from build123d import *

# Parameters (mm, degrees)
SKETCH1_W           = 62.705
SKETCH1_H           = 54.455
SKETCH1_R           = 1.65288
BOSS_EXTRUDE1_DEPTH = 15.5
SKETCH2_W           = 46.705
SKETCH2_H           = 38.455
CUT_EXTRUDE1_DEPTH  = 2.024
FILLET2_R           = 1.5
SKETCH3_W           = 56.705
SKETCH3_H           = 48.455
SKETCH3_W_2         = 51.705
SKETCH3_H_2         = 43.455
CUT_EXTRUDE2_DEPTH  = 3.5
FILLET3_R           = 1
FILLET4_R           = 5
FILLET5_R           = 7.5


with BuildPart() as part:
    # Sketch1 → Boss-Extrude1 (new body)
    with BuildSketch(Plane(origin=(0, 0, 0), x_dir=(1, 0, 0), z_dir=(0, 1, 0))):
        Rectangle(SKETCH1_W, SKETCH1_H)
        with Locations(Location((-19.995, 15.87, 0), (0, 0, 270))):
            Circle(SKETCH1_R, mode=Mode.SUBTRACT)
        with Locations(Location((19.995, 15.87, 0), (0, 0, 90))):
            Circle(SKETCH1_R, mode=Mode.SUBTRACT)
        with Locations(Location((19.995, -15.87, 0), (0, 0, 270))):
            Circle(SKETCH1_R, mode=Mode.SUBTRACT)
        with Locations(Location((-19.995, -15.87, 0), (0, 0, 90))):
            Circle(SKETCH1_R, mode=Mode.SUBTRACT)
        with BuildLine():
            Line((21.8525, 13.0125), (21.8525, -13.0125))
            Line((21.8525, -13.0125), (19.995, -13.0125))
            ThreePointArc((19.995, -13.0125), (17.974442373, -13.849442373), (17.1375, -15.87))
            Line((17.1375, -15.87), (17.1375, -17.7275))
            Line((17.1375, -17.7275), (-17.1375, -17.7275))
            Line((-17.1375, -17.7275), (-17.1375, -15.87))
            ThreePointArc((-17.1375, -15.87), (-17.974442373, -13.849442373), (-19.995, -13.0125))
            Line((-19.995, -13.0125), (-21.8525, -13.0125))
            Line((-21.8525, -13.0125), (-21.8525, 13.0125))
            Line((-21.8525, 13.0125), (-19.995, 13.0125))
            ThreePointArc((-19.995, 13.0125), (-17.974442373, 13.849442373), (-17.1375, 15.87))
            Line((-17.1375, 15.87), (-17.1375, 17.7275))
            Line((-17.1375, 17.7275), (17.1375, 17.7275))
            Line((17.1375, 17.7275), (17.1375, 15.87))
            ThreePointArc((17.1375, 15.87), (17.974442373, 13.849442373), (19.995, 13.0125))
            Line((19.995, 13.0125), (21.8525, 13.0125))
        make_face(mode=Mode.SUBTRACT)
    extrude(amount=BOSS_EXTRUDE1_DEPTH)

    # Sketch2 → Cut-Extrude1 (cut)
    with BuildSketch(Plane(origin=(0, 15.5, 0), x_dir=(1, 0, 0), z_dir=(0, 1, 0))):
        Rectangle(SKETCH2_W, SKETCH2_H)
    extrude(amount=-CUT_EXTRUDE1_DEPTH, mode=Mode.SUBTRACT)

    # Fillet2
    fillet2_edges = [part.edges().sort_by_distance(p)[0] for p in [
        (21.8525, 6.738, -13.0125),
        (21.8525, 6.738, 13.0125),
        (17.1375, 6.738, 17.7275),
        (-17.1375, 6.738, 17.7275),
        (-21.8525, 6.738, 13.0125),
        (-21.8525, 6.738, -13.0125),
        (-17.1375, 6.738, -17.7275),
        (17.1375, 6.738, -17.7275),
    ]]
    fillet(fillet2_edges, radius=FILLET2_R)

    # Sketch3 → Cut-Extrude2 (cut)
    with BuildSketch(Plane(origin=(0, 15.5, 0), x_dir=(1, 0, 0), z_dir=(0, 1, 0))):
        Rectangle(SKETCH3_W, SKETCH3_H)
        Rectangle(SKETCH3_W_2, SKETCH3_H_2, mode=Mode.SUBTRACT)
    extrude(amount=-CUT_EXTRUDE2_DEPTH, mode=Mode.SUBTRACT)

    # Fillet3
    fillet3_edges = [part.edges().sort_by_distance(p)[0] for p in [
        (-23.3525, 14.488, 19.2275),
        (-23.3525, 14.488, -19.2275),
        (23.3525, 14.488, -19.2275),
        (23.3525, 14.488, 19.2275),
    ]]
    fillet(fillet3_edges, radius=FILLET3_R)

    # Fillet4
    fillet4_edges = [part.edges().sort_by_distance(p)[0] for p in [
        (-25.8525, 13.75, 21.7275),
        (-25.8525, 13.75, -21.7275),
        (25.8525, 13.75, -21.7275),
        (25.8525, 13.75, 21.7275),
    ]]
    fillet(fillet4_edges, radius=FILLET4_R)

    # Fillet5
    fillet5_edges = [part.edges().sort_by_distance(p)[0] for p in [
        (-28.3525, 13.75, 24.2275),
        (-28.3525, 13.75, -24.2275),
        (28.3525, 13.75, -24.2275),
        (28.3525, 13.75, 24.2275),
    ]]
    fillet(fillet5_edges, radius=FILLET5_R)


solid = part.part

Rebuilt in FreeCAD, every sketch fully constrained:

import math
import FreeCAD as App
import Part
import Sketcher


def edges_at(feature, points):
    """Names of the edges that pass closest to the given points."""
    edges = feature.Shape.Edges
    near = lambda p: min(range(len(edges)), key=lambda i: edges[i].distToShape(Part.Vertex(*p))[0])
    return sorted({f"Edge{near(p) + 1}" for p in points})

doc = App.newDocument("Part")
body = doc.addObject("PartDesign::Body", "Body")

# Sketch on XZ plane
sketch1 = body.newObject("Sketcher::SketchObject", "Sketch")
sketch1.AttachmentSupport = (doc.getObject("XZ_Plane"), [""])
sketch1.MapMode = "FlatFace"
sketch1.addGeometry(Part.LineSegment(App.Vector(-31.4, -27.2, 0), App.Vector(-31.4, 27.2, 0)), False)
sketch1.addGeometry(Part.LineSegment(App.Vector(-31.4, 27.2, 0), App.Vector(31.4, 27.2, 0)), False)
sketch1.addGeometry(Part.LineSegment(App.Vector(31.4, 27.2, 0), App.Vector(31.4, -27.2, 0)), False)
sketch1.addGeometry(Part.LineSegment(App.Vector(31.4, -27.2, 0), App.Vector(-31.4, -27.2, 0)), False)
sketch1.addGeometry(Part.Circle(App.Vector(-20, 15.9, 0), App.Vector(0, 0, 1), 1.7), False)
sketch1.addGeometry(Part.Circle(App.Vector(20, 15.9, 0), App.Vector(0, 0, 1), 1.7), False)
sketch1.addGeometry(Part.Circle(App.Vector(-20, -15.9, 0), App.Vector(0, 0, 1), 1.7), False)
sketch1.addGeometry(Part.LineSegment(App.Vector(20, -13, 0), App.Vector(21.9, -13, 0)), False)
sketch1.addGeometry(Part.LineSegment(App.Vector(21.9, -13, 0), App.Vector(21.9, 13, 0)), False)
sketch1.addGeometry(Part.LineSegment(App.Vector(21.9, 13, 0), App.Vector(20, 13, 0)), False)
sketch1.addGeometry(Part.ArcOfCircle(Part.Circle(App.Vector(20, 15.9, 0), App.Vector(0, 0, 1), 2.9), math.radians(-180), math.radians(-90)), False)
sketch1.addGeometry(Part.LineSegment(App.Vector(17.1, 15.9, 0), App.Vector(17.1, 17.7, 0)), False)
sketch1.addGeometry(Part.LineSegment(App.Vector(17.1, 17.7, 0), App.Vector(-17.1, 17.7, 0)), False)
sketch1.addGeometry(Part.LineSegment(App.Vector(-17.1, 17.7, 0), App.Vector(-17.1, 15.9, 0)), False)
sketch1.addGeometry(Part.ArcOfCircle(Part.Circle(App.Vector(-20, 15.9, 0), App.Vector(0, 0, 1), 2.9), math.radians(-90), math.radians(0)), False)
sketch1.addGeometry(Part.LineSegment(App.Vector(-20, 13, 0), App.Vector(-21.9, 13, 0)), False)
sketch1.addGeometry(Part.LineSegment(App.Vector(-21.9, 13, 0), App.Vector(-21.9, -13, 0)), False)
sketch1.addGeometry(Part.LineSegment(App.Vector(-21.9, -13, 0), App.Vector(-20, -13, 0)), False)
sketch1.addGeometry(Part.ArcOfCircle(Part.Circle(App.Vector(-20, -15.9, 0), App.Vector(0, 0, 1), 2.9), math.radians(0), math.radians(90)), False)
sketch1.addGeometry(Part.LineSegment(App.Vector(-17.1, -15.9, 0), App.Vector(-17.1, -17.7, 0)), False)
sketch1.addGeometry(Part.LineSegment(App.Vector(-17.1, -17.7, 0), App.Vector(17.1, -17.7, 0)), False)
sketch1.addGeometry(Part.LineSegment(App.Vector(17.1, -17.7, 0), App.Vector(17.1, -15.9, 0)), False)
sketch1.addGeometry(Part.ArcOfCircle(Part.Circle(App.Vector(20, -15.9, 0), App.Vector(0, 0, 1), 2.9), math.radians(90), math.radians(180)), False)
sketch1.addGeometry(Part.Circle(App.Vector(20, -15.9, 0), App.Vector(0, 0, 1), 1.7), False)
sketch1.addConstraint(Sketcher.Constraint("Coincident", 0, 2, 1, 1))
sketch1.addConstraint(Sketcher.Constraint("Coincident", 1, 2, 2, 1))
sketch1.addConstraint(Sketcher.Constraint("Coincident", 2, 2, 3, 1))
sketch1.addConstraint(Sketcher.Constraint("Coincident", 3, 2, 0, 1))
sketch1.addConstraint(Sketcher.Constraint("Coincident", 7, 2, 8, 1))
sketch1.addConstraint(Sketcher.Constraint("Coincident", 8, 2, 9, 1))
sketch1.addConstraint(Sketcher.Constraint("Tangent", 9, 2, 10, 2))
sketch1.addConstraint(Sketcher.Constraint("Tangent", 10, 1, 11, 1))
sketch1.addConstraint(Sketcher.Constraint("Coincident", 11, 2, 12, 1))
sketch1.addConstraint(Sketcher.Constraint("Coincident", 12, 2, 13, 1))
sketch1.addConstraint(Sketcher.Constraint("Tangent", 13, 2, 14, 2))
sketch1.addConstraint(Sketcher.Constraint("Tangent", 14, 1, 15, 1))
sketch1.addConstraint(Sketcher.Constraint("Coincident", 15, 2, 16, 1))
sketch1.addConstraint(Sketcher.Constraint("Coincident", 16, 2, 17, 1))
sketch1.addConstraint(Sketcher.Constraint("Tangent", 17, 2, 18, 2))
sketch1.addConstraint(Sketcher.Constraint("Tangent", 18, 1, 19, 1))
sketch1.addConstraint(Sketcher.Constraint("Coincident", 19, 2, 20, 1))
sketch1.addConstraint(Sketcher.Constraint("Coincident", 20, 2, 21, 1))
sketch1.addConstraint(Sketcher.Constraint("Tangent", 21, 2, 22, 2))
sketch1.addConstraint(Sketcher.Constraint("Tangent", 22, 1, 7, 1))
sketch1.addConstraint(Sketcher.Constraint("Vertical", 0))
sketch1.addConstraint(Sketcher.Constraint("Horizontal", 1))
sketch1.addConstraint(Sketcher.Constraint("Vertical", 2))
sketch1.addConstraint(Sketcher.Constraint("Horizontal", 3))
sketch1.addConstraint(Sketcher.Constraint("Horizontal", 7))
sketch1.addConstraint(Sketcher.Constraint("Vertical", 8))
sketch1.addConstraint(Sketcher.Constraint("Horizontal", 9))
sketch1.addConstraint(Sketcher.Constraint("Vertical", 11))
sketch1.addConstraint(Sketcher.Constraint("Horizontal", 12))
sketch1.addConstraint(Sketcher.Constraint("Vertical", 13))
sketch1.addConstraint(Sketcher.Constraint("Horizontal", 15))
sketch1.addConstraint(Sketcher.Constraint("Vertical", 16))
sketch1.addConstraint(Sketcher.Constraint("Horizontal", 17))
sketch1.addConstraint(Sketcher.Constraint("Vertical", 19))
sketch1.addConstraint(Sketcher.Constraint("Horizontal", 20))
sketch1.addConstraint(Sketcher.Constraint("Vertical", 21))
sketch1.addConstraint(Sketcher.Constraint("Coincident", 10, 3, 5, 3))
sketch1.addConstraint(Sketcher.Constraint("Coincident", 14, 3, 4, 3))
sketch1.addConstraint(Sketcher.Constraint("Coincident", 18, 3, 6, 3))
sketch1.addConstraint(Sketcher.Constraint("Coincident", 23, 3, 22, 3))
sketch1.addConstraint(Sketcher.Constraint("Equal", 4, 5))
sketch1.addConstraint(Sketcher.Constraint("Equal", 5, 6))
sketch1.addConstraint(Sketcher.Constraint("Equal", 10, 14))
sketch1.addConstraint(Sketcher.Constraint("Equal", 14, 18))
sketch1.addConstraint(Sketcher.Constraint("Equal", 18, 22))
sketch1.addConstraint(Sketcher.Constraint("Equal", 6, 23))
sketch1.addConstraint(Sketcher.Constraint("Symmetric", 5, 3, 6, 3, -1, 1))
sketch1.addConstraint(Sketcher.Constraint("Symmetric", 4, 3, 22, 3, -1, 1))
sketch1.addConstraint(Sketcher.Constraint("Symmetric", 0, 2, 2, 2, -1, 1))
sketch1.addConstraint(Sketcher.Constraint("Symmetric", 4, 3, 5, 3, -2))
sketch1.addConstraint(Sketcher.Constraint("Equal", 9, 15))
sketch1.addConstraint(Sketcher.Constraint("Equal", 17, 11))
sketch1.addConstraint(Sketcher.Constraint("Equal", 13, 19))
sketch1.addConstraint(Sketcher.Constraint("Radius", 10, 2.8575))
sketch1.addConstraint(Sketcher.Constraint("DistanceX", 7, 2, 2, 2, 9.5))
sketch1.addConstraint(Sketcher.Constraint("DistanceY", 12, 2, 0, 2, 9.5))
sketch1.addConstraint(Sketcher.Constraint("Diameter", 4, 3.30576))
sketch1.addConstraint(Sketcher.Constraint("DistanceX", 1, 1, 1, 2, 62.705))
sketch1.addConstraint(Sketcher.Constraint("DistanceX", 12, 2, 12, 1, 34.275))
sketch1.addConstraint(Sketcher.Constraint("DistanceY", 0, 1, 0, 2, 54.455))
pad1 = body.newObject("PartDesign::Pad", "Pad")
pad1.Profile = sketch1
pad1.Length = 15.5
pad1.Reversed = True

# Sketch on XZ plane
sketch2 = body.newObject("Sketcher::SketchObject", "Sketch001")
sketch2.AttachmentSupport = (doc.getObject("XZ_Plane"), [""])
sketch2.MapMode = "FlatFace"
sketch2.AttachmentOffset = App.Placement(App.Vector(0, 0, -15.5), App.Rotation())
sketch2.addGeometry(Part.LineSegment(App.Vector(-23, -19, 0), App.Vector(-23, 19, 0)), False)
sketch2.addGeometry(Part.LineSegment(App.Vector(-23, 19, 0), App.Vector(23, 19, 0)), False)
sketch2.addGeometry(Part.LineSegment(App.Vector(23, 19, 0), App.Vector(23, -19, 0)), False)
sketch2.addGeometry(Part.LineSegment(App.Vector(23, -19, 0), App.Vector(-23, -19, 0)), False)
sketch2.addConstraint(Sketcher.Constraint("Coincident", 0, 2, 1, 1))
sketch2.addConstraint(Sketcher.Constraint("Coincident", 1, 2, 2, 1))
sketch2.addConstraint(Sketcher.Constraint("Coincident", 2, 2, 3, 1))
sketch2.addConstraint(Sketcher.Constraint("Coincident", 3, 2, 0, 1))
sketch2.addConstraint(Sketcher.Constraint("Vertical", 0))
sketch2.addConstraint(Sketcher.Constraint("Horizontal", 1))
sketch2.addConstraint(Sketcher.Constraint("Vertical", 2))
sketch2.addConstraint(Sketcher.Constraint("Horizontal", 3))
sketch2.addConstraint(Sketcher.Constraint("Symmetric", 0, 2, 2, 2, -1, 1))
sketch2.addConstraint(Sketcher.Constraint("DistanceX", 1, 1, 1, 2, 46.705))
sketch2.addConstraint(Sketcher.Constraint("DistanceY", 0, 1, 0, 2, 38.455))
pocket1 = body.newObject("PartDesign::Pocket", "Pocket")
pocket1.Profile = sketch2
pocket1.Length = 2.024
pocket1.Reversed = True
doc.recompute()

fillet = body.newObject("PartDesign::Fillet", "Fillet")
fillet.Base = (pocket1, edges_at(pocket1, [
    (21.852, 6.738, -13.012),
    (21.852, 6.738, 13.012),
    (17.137, 6.738, 17.727),
    (-17.137, 6.738, 17.727),
    (-21.852, 6.738, 13.012),
    (-21.852, 6.738, -13.012),
    (-17.137, 6.738, -17.727),
    (17.137, 6.738, -17.727),
]))
fillet.Radius = 1.5

# Sketch on XZ plane
sketch3 = body.newObject("Sketcher::SketchObject", "Sketch002")
sketch3.AttachmentSupport = (doc.getObject("XZ_Plane"), [""])
sketch3.MapMode = "FlatFace"
sketch3.AttachmentOffset = App.Placement(App.Vector(0, 0, -15.5), App.Rotation())
sketch3.addGeometry(Part.LineSegment(App.Vector(-28, -24, 0), App.Vector(-28, 24, 0)), False)
sketch3.addGeometry(Part.LineSegment(App.Vector(-28, 24, 0), App.Vector(28, 24, 0)), False)
sketch3.addGeometry(Part.LineSegment(App.Vector(28, 24, 0), App.Vector(28, -24, 0)), False)
sketch3.addGeometry(Part.LineSegment(App.Vector(28, -24, 0), App.Vector(-28, -24, 0)), False)
sketch3.addGeometry(Part.LineSegment(App.Vector(26, 22, 0), App.Vector(-26, 22, 0)), False)
sketch3.addGeometry(Part.LineSegment(App.Vector(-26, 22, 0), App.Vector(-26, -22, 0)), False)
sketch3.addGeometry(Part.LineSegment(App.Vector(-26, -22, 0), App.Vector(26, -22, 0)), False)
sketch3.addGeometry(Part.LineSegment(App.Vector(26, -22, 0), App.Vector(26, 22, 0)), False)
sketch3.addConstraint(Sketcher.Constraint("Coincident", 0, 2, 1, 1))
sketch3.addConstraint(Sketcher.Constraint("Coincident", 1, 2, 2, 1))
sketch3.addConstraint(Sketcher.Constraint("Coincident", 2, 2, 3, 1))
sketch3.addConstraint(Sketcher.Constraint("Coincident", 3, 2, 0, 1))
sketch3.addConstraint(Sketcher.Constraint("Coincident", 4, 2, 5, 1))
sketch3.addConstraint(Sketcher.Constraint("Coincident", 5, 2, 6, 1))
sketch3.addConstraint(Sketcher.Constraint("Coincident", 6, 2, 7, 1))
sketch3.addConstraint(Sketcher.Constraint("Coincident", 7, 2, 4, 1))
sketch3.addConstraint(Sketcher.Constraint("Vertical", 0))
sketch3.addConstraint(Sketcher.Constraint("Horizontal", 1))
sketch3.addConstraint(Sketcher.Constraint("Vertical", 2))
sketch3.addConstraint(Sketcher.Constraint("Horizontal", 3))
sketch3.addConstraint(Sketcher.Constraint("Horizontal", 4))
sketch3.addConstraint(Sketcher.Constraint("Vertical", 5))
sketch3.addConstraint(Sketcher.Constraint("Horizontal", 6))
sketch3.addConstraint(Sketcher.Constraint("Vertical", 7))
sketch3.addConstraint(Sketcher.Constraint("Symmetric", 0, 2, 2, 2, -1, 1))
sketch3.addConstraint(Sketcher.Constraint("Symmetric", 4, 2, 6, 2, -1, 1))
sketch3.addConstraint(Sketcher.Constraint("DistanceX", 0, 2, 4, 2, 2.5))
sketch3.addConstraint(Sketcher.Constraint("DistanceY", 4, 2, 0, 2, 2.5))
sketch3.addConstraint(Sketcher.Constraint("DistanceX", 1, 1, 1, 2, 56.705))
sketch3.addConstraint(Sketcher.Constraint("DistanceY", 0, 1, 0, 2, 48.455))
pocket2 = body.newObject("PartDesign::Pocket", "Pocket001")
pocket2.Profile = sketch3
pocket2.Length = 3.5
pocket2.Reversed = True
doc.recompute()

fillet2 = body.newObject("PartDesign::Fillet", "Fillet001")
fillet2.Base = (pocket2, edges_at(pocket2, [
    (-23.352, 14.488, 19.227),
    (-23.352, 14.488, -19.227),
    (23.352, 14.488, -19.227),
    (23.352, 14.488, 19.227),
]))
fillet2.Radius = 1
doc.recompute()

fillet3 = body.newObject("PartDesign::Fillet", "Fillet002")
fillet3.Base = (fillet2, edges_at(fillet2, [
    (-25.852, 13.75, 21.727),
    (-25.852, 13.75, -21.727),
    (25.852, 13.75, -21.727),
    (25.852, 13.75, 21.727),
]))
fillet3.Radius = 5
doc.recompute()

fillet4 = body.newObject("PartDesign::Fillet", "Fillet003")
fillet4.Base = (fillet3, edges_at(fillet3, [
    (-28.352, 13.75, 24.227),
    (-28.352, 13.75, -24.227),
    (28.352, 13.75, -24.227),
    (28.352, 13.75, 24.227),
]))
fillet4.Radius = 7.5

doc.recompute()
